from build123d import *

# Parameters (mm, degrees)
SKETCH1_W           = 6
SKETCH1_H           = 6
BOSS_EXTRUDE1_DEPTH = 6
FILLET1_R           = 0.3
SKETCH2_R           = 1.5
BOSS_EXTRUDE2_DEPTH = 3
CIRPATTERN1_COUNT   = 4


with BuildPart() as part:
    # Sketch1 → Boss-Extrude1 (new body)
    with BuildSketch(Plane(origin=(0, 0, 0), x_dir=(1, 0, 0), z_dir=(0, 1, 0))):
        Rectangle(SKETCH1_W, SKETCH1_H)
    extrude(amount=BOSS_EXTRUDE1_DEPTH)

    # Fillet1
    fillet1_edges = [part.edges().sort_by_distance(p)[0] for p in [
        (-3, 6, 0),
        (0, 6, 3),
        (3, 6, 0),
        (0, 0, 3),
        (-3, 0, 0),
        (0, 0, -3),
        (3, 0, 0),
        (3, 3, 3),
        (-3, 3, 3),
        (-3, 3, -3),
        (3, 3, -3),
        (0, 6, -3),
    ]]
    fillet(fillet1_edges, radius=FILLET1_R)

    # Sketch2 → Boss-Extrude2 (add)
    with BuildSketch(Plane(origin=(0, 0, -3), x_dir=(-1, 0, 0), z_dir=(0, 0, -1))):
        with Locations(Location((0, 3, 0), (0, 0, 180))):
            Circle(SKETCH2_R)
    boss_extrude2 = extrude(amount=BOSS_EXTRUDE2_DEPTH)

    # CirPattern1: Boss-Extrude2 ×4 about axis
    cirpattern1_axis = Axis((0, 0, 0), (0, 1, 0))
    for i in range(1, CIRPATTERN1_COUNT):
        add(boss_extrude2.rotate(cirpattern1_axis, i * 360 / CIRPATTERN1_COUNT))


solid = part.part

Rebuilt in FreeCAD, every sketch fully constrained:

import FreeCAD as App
import Part
import Sketcher
from FreeCAD import Vector
Q = App.Units.Quantity


def add_polygon(sketch, points):
    """Adds a closed chain of lines whose ends are joined by coincident constraints."""
    first, n = sketch.GeometryCount, len(points)
    for a, b in zip(points, points[1:] + points[:1]):
        sketch.addGeometry(Part.LineSegment(App.Vector(*a, 0), App.Vector(*b, 0)), False)
    for i in range(n):
        sketch.addConstraint(Sketcher.Constraint("Coincident", first + i, 2, first + (i + 1) % n, 1))

doc = App.newDocument("Part")
body = doc.addObject("PartDesign::Body", "Body")

sketch1 = doc.addObject("Sketcher::SketchObject", "Sketch")
body.addObject(sketch1)
sketch1.AttachmentSupport = (doc.XZ_Plane, [""])
sketch1.MapMode = "FlatFace"
add_polygon(sketch1, [(-3, -3), (-3, 3), (3, 3), (3, -3)])
sketch1.addConstraint([
    Sketcher.Constraint("Vertical", 0),
    Sketcher.Constraint("Horizontal", 1),
    Sketcher.Constraint("Vertical", 2),
    Sketcher.Constraint("Horizontal", 3),
    Sketcher.Constraint("Symmetric", 0, 2, 2, 2, -1, 1),
    Sketcher.Constraint("Equal", 3, 0),
    Sketcher.Constraint("DistanceX", 1, 1, 1, 2, Q("6 mm")),
])
pad1 = doc.addObject("PartDesign::Pad", "Pad")
body.addObject(pad1)
pad1.Profile = sketch1
pad1.Length = 6
pad1.Reversed = True
doc.recompute()

fillet = doc.addObject("PartDesign::Fillet", "Fillet")
body.addObject(fillet)
fillet.Base = (pad1, ["Edge1"])
fillet.UseAllEdges = True
fillet.Radius = 0.3

sketch2 = doc.addObject("Sketcher::SketchObject", "Sketch001")
body.addObject(sketch2)
sketch2.AttachmentSupport = (doc.XY_Plane, [""])
sketch2.MapMode = "FlatFace"
sketch2.AttachmentOffset = App.Placement(Vector(0, 0, -3), App.Rotation())
sketch2.addGeometry(Part.Circle(Vector(0, 3, 0), Vector(0, 0, 1), 1.5), False)
sketch2.addConstraint([
    Sketcher.Constraint("PointOnObject", 0, 3, -2),
    Sketcher.Constraint("Diameter", 0, Q("3 mm")),
    Sketcher.Constraint("DistanceY", -1, 1, 0, 3, Q("3 mm")),
])
pad2 = doc.addObject("PartDesign::Pad", "Pad001")
body.addObject(pad2)
pad2.Profile = sketch2
pad2.Length = 3
pad2.Reversed = True
doc.recompute()

polarpattern = doc.addObject("PartDesign::PolarPattern", "PolarPattern")
body.addObject(polarpattern)
polarpattern.Originals = [pad2]
polarpattern.Axis = (doc.Y_Axis, [""])
polarpattern.Angle = 360
polarpattern.Occurrences = 4
body.Tip = polarpattern

doc.recompute()
